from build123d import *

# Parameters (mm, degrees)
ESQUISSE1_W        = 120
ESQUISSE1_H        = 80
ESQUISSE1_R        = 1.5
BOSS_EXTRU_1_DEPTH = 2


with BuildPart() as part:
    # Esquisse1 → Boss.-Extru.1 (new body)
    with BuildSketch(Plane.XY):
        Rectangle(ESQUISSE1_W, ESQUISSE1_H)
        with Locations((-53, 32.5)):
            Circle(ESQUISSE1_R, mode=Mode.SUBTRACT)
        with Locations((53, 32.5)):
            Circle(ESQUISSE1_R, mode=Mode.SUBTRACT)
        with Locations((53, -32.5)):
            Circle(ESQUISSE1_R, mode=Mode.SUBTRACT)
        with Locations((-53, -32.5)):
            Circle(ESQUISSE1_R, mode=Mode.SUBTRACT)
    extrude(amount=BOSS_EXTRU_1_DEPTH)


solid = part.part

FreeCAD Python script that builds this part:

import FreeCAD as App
import Part
import Sketcher

V = App.Vector


def add_polygon(sketch, points):
    """Adds a closed chain of lines whose ends are joined by coincident constraints."""
    first, n = sketch.GeometryCount, len(points)
    for a, b in zip(points, points[1:] + points[:1]):
        sketch.addGeometry(Part.LineSegment(App.Vector(*a, 0), App.Vector(*b, 0)), False)
    for i in range(n):
        sketch.addConstraint(Sketcher.Constraint("Coincident", first + i, 2, first + (i + 1) % n, 1))

doc = App.newDocument("Part")
body = doc.addObject("PartDesign::Body", "Body")

sketch1 = doc.addObject("Sketcher::SketchObject", "Sketch")
body.addObject(sketch1)
sketch1.AttachmentSupport = (doc.XY_Plane, [""])
sketch1.MapMode = "FlatFace"
add_polygon(sketch1, [(-60, 40), (-60, -40), (60, -40), (60, 40)])
sketch1.addGeometry(Part.Circle(V(-53, -32.5, 0), V(0, 0, 1), 1.5), False)
sketch1.addGeometry(Part.Circle(V(53, -32.5, 0), V(0, 0, 1), 1.5), False)
sketch1.addGeometry(Part.Circle(V(-53, 32.5, 0), V(0, 0, 1), 1.5), False)
sketch1.addGeometry(Part.Circle(V(53, 32.5, 0), V(0, 0, 1), 1.5), False)
sketch1.addConstraint([
    Sketcher.Constraint("Vertical", 0),
    Sketcher.Constraint("Horizontal", 1),
    Sketcher.Constraint("Vertical", 2),
    Sketcher.Constraint("Horizontal", 3),
    Sketcher.Constraint("Equal", 4, 5),
    Sketcher.Constraint("Equal", 5, 6),
    Sketcher.Constraint("Equal", 6, 7),
    Sketcher.Constraint("Symmetric", 5, 3, 6, 3, -1, 1),
    Sketcher.Constraint("Symmetric", 4, 3, 7, 3, -1, 1),
    Sketcher.Constraint("Symmetric", 0, 2, 2, 2, -1, 1),
    Sketcher.Constraint("Symmetric", 4, 3, 5, 3, -2),
    Sketcher.Constraint("Diameter", 4, 3.0),
    Sketcher.Constraint("DistanceX", 1, 1, 1, 2, 120.0),
    Sketcher.Constraint("DistanceY", 0, 2, 0, 1, 80.0),
    Sketcher.Constraint("DistanceX", 4, 3, -1, 1, 53.0),
    Sketcher.Constraint("DistanceY", 4, 3, 6, 3, 65.0),
])
pad1 = doc.addObject("PartDesign::Pad", "Pad")
body.addObject(pad1)
pad1.Profile = sketch1
pad1.Length = 2

doc.recompute()
